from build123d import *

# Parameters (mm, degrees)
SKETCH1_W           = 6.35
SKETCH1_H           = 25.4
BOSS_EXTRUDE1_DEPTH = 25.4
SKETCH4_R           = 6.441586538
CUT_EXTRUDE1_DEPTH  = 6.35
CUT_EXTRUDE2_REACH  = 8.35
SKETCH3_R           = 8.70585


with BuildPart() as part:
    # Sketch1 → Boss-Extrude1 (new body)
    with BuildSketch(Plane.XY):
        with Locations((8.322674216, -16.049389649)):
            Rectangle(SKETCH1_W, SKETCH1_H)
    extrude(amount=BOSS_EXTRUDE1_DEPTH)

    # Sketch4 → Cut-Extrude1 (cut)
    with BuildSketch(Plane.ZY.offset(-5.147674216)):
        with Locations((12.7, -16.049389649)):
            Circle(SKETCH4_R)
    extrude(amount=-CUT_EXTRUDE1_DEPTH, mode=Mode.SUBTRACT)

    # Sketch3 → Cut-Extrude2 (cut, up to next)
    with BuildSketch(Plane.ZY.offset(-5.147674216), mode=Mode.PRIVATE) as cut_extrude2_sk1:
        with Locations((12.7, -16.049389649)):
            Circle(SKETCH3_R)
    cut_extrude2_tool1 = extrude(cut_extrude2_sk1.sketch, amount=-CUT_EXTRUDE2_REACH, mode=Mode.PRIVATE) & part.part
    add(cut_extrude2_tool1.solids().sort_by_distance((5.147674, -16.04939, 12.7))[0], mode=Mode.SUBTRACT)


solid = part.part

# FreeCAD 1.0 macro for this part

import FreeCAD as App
import Part
import Sketcher

V = App.Vector
Q = App.Units.Quantity


def add_polygon(sketch, points):
    """Adds a closed chain of lines whose ends are joined by coincident constraints."""
    first, n = sketch.GeometryCount, len(points)
    for a, b in zip(points, points[1:] + points[:1]):
        sketch.addGeometry(Part.LineSegment(App.Vector(*a, 0), App.Vector(*b, 0)), False)
    for i in range(n):
        sketch.addConstraint(Sketcher.Constraint("Coincident", first + i, 2, first + (i + 1) % n, 1))

doc = App.newDocument("Part")
params = doc.addObject("Spreadsheet::Sheet", "Params")
for row, (alias, value) in enumerate([
    ("sketch1_height", "1 in"),
    ("sketch1_width", "0.25 in"),
    ("pad1_length", "1 in"),
    ("pocket1_length", "0.25 in"),
    ("pocket2_length", "0.25 in"),
], start=1):
    params.set(f"A{row}", alias)
    params.set(f"B{row}", "=" + value)
    params.setAlias(f"B{row}", alias)

body = doc.addObject("PartDesign::Body", "Body")

# Sketch on XY plane
sketch1 = body.newObject("Sketcher::SketchObject", "Sketch")
sketch1.AttachmentSupport = (doc.getObject("XY_Plane"), [""])
sketch1.MapMode = "FlatFace"
add_polygon(sketch1, [(5, -3), (5, -29), (11, -29), (11, -3)])  # lines 0-3
sketch1.addConstraint(Sketcher.Constraint("Vertical", 0))
sketch1.addConstraint(Sketcher.Constraint("Horizontal", 1))
sketch1.addConstraint(Sketcher.Constraint("Vertical", 2))
sketch1.addConstraint(Sketcher.Constraint("Horizontal", 3))
sketch1.addConstraint(Sketcher.Constraint("DistanceY", 0, 2, 0, 1, Q("1 in")))
sketch1.addConstraint(Sketcher.Constraint("DistanceX", 1, 1, 1, 2, Q("0.25 in")))
sketch1.addConstraint(Sketcher.Constraint("DistanceY", 0, 2, -1, 1, Q("28.74939 mm")))
sketch1.addConstraint(Sketcher.Constraint("DistanceX", -1, 1, 0, 2, Q("5.147674 mm")))
sketch1.setExpression("Constraints[8]", "Params.sketch1_height")
sketch1.setExpression("Constraints[9]", "Params.sketch1_width")
pad1 = body.newObject("PartDesign::Pad", "Pad")
pad1.Profile = sketch1
pad1.setExpression("Length", "Params.pad1_length")

# Sketch on YZ plane
sketch2 = body.newObject("Sketcher::SketchObject", "Sketch001")
sketch2.AttachmentSupport = (doc.getObject("YZ_Plane"), [""])
sketch2.MapMode = "FlatFace"
sketch2.AttachmentOffset = App.Placement(V(0, 0, 5.147674), App.Rotation())
sketch2.addGeometry(Part.Circle(V(-16, 13, 0), V(0, 0, 1), 6), False)
sketch2.addConstraint(Sketcher.Constraint("DistanceY", -1, 1, 0, 3, Q("0.5 in")))
sketch2.addConstraint(Sketcher.Constraint("Diameter", 0, Q("12.883173 mm")))
sketch2.addConstraint(Sketcher.Constraint("DistanceX", 0, 3, -1, 1, Q("16.04939 mm")))
pocket1 = body.newObject("PartDesign::Pocket", "Pocket")
pocket1.Profile = sketch2
pocket1.setExpression("Length", "Params.pocket1_length")
pocket1.Reversed = True

# Sketch on YZ plane
sketch3 = body.newObject("Sketcher::SketchObject", "Sketch002")
sketch3.AttachmentSupport = (doc.getObject("YZ_Plane"), [""])
sketch3.MapMode = "FlatFace"
sketch3.AttachmentOffset = App.Placement(V(0, 0, 5.147674), App.Rotation())
sketch3.addGeometry(Part.Circle(V(-16, 13, 0), V(0, 0, 1), 9), False)
sketch3.addConstraint(Sketcher.Constraint("Diameter", 0, Q("0.6855 in")))
sketch3.addConstraint(Sketcher.Constraint("DistanceY", -1, 1, 0, 3, Q("0.5 in")))
sketch3.addConstraint(Sketcher.Constraint("DistanceX", 0, 3, -1, 1, Q("16.04939 mm")))
pocket2 = body.newObject("PartDesign::Pocket", "Pocket001")
pocket2.Profile = sketch3
pocket2.setExpression("Length", "Params.pocket2_length")
pocket2.Reversed = True

doc.recompute()
